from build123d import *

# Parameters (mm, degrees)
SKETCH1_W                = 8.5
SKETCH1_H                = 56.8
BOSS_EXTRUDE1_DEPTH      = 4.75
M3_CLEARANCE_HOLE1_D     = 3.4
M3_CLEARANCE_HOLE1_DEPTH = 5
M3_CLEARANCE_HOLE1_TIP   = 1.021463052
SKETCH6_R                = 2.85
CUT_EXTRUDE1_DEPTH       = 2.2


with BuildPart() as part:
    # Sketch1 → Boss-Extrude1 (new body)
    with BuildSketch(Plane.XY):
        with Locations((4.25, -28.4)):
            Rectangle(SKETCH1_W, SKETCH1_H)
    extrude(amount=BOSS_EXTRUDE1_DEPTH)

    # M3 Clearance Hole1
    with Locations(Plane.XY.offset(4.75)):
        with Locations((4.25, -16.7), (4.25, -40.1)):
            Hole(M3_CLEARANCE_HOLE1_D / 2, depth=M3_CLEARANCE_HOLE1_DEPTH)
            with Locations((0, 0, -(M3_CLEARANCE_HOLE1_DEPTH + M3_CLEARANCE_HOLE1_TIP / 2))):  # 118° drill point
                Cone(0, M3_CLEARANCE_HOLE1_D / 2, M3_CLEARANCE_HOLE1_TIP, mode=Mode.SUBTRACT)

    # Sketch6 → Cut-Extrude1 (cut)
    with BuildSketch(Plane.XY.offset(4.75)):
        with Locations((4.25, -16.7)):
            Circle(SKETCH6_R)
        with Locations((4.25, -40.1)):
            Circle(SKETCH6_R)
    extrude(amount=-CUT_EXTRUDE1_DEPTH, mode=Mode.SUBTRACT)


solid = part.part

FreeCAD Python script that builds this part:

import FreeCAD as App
import Part
import Sketcher


def add_polygon(sketch, points):
    """Adds a closed chain of lines whose ends are joined by coincident constraints."""
    first, n = sketch.GeometryCount, len(points)
    for a, b in zip(points, points[1:] + points[:1]):
        sketch.addGeometry(Part.LineSegment(App.Vector(*a, 0), App.Vector(*b, 0)), False)
    for i in range(n):
        sketch.addConstraint(Sketcher.Constraint("Coincident", first + i, 2, first + (i + 1) % n, 1))

doc = App.newDocument("Part")
params = doc.addObject("Spreadsheet::Sheet", "Params")
for row, (alias, value) in enumerate([
    ("sketch1_width", "8.5 mm"),
    ("sketch1_height", "56.8 mm"),
    ("pad1_length", "4.75 mm"),
    ("sketch2_diameter", "3.4 mm"),
    ("hole_diameter", "3.4 mm"),
    ("hole_depth", "5 mm"),
    ("sketch3_diameter", "5.7 mm"),
    ("pocket1_length", "2.2 mm"),
], start=1):
    params.set(f"A{row}", alias)
    params.set(f"B{row}", "=" + value)
    params.setAlias(f"B{row}", alias)

body = doc.addObject("PartDesign::Body", "Body")

sketch1 = doc.addObject("Sketcher::SketchObject", "Sketch")
body.addObject(sketch1)
sketch1.AttachmentSupport = (doc.XY_Plane, [""])
sketch1.MapMode = "FlatFace"
add_polygon(sketch1, [(0, 0), (0, -56.8), (8.5, -56.8), (8.5, 0)])
sketch1.addConstraint(Sketcher.Constraint("Vertical", 0))
sketch1.addConstraint(Sketcher.Constraint("Horizontal", 1))
sketch1.addConstraint(Sketcher.Constraint("Vertical", 2))
sketch1.addConstraint(Sketcher.Constraint("Horizontal", 3))
sketch1.addConstraint(Sketcher.Constraint("Coincident", 3, 2, -1, 1))
sketch1.addConstraint(Sketcher.Constraint("DistanceX", 1, 1, 1, 2, 8.5))
sketch1.addConstraint(Sketcher.Constraint("DistanceY", 0, 2, 0, 1, 56.8))
sketch1.setExpression("Constraints[9]", "Params.sketch1_width")
sketch1.setExpression("Constraints[10]", "Params.sketch1_height")
pad1 = doc.addObject("PartDesign::Pad", "Pad")
body.addObject(pad1)
pad1.Profile = sketch1
pad1.setExpression("Length", "Params.pad1_length")

sketch2 = doc.addObject("Sketcher::SketchObject", "Sketch001")
body.addObject(sketch2)
sketch2.AttachmentSupport = (doc.XY_Plane, [""])
sketch2.MapMode = "FlatFace"
sketch2.AttachmentOffset = App.Placement(App.Vector(0, 0, 4.75), App.Rotation())
sketch2.addGeometry(Part.Circle(App.Vector(4.25, -16.7, 0), App.Vector(0, 0, 1), 1.7), False)
sketch2.addGeometry(Part.Circle(App.Vector(4.25, -40.1, 0), App.Vector(0, 0, 1), 1.7), False)
sketch2.addConstraint(Sketcher.Constraint("Equal", 0, 1))
sketch2.addConstraint(Sketcher.Constraint("Vertical", 0, 3, 1, 3))
sketch2.addConstraint(Sketcher.Constraint("Diameter", 0, 3.4))
sketch2.addConstraint(Sketcher.Constraint("DistanceY", 0, 3, -1, 1, 16.7))
sketch2.addConstraint(Sketcher.Constraint("DistanceY", 1, 3, -1, 1, 40.1))
sketch2.addConstraint(Sketcher.Constraint("DistanceX", -1, 1, 0, 3, 4.25))
sketch2.setExpression("Constraints[2]", "Params.sketch2_diameter")
doc.recompute()
hole = doc.addObject("PartDesign::Hole", "Hole")
body.addObject(hole)
hole.Profile = sketch2
hole.ThreadType = "None"
hole.setExpression("Diameter", "Params.hole_diameter")
hole.DepthType = "Dimension"
hole.setExpression("Depth", "Params.hole_depth")
hole.DrillPoint = "Angled"
hole.DrillPointAngle = 118

sketch3 = doc.addObject("Sketcher::SketchObject", "Sketch002")
body.addObject(sketch3)
sketch3.AttachmentSupport = (doc.XY_Plane, [""])
sketch3.MapMode = "FlatFace"
sketch3.AttachmentOffset = App.Placement(App.Vector(0, 0, 4.75), App.Rotation())
sketch3.addGeometry(Part.Circle(App.Vector(4.25, -16.7, 0), App.Vector(0, 0, 1), 2.85), False)
sketch3.addGeometry(Part.Circle(App.Vector(4.25, -40.1, 0), App.Vector(0, 0, 1), 2.85), False)
sketch3.addConstraint(Sketcher.Constraint("Equal", 0, 1))
sketch3.addConstraint(Sketcher.Constraint("Vertical", 0, 3, 1, 3))
sketch3.addConstraint(Sketcher.Constraint("Diameter", 0, 5.7))
sketch3.addConstraint(Sketcher.Constraint("DistanceY", 0, 3, -1, 1, 16.7))
sketch3.addConstraint(Sketcher.Constraint("DistanceY", 1, 3, -1, 1, 40.1))
sketch3.addConstraint(Sketcher.Constraint("DistanceX", -1, 1, 0, 3, 4.25))
sketch3.setExpression("Constraints[2]", "Params.sketch3_diameter")
pocket1 = doc.addObject("PartDesign::Pocket", "Pocket")
body.addObject(pocket1)
pocket1.Profile = sketch3
pocket1.setExpression("Length", "Params.pocket1_length")

doc.recompute()
